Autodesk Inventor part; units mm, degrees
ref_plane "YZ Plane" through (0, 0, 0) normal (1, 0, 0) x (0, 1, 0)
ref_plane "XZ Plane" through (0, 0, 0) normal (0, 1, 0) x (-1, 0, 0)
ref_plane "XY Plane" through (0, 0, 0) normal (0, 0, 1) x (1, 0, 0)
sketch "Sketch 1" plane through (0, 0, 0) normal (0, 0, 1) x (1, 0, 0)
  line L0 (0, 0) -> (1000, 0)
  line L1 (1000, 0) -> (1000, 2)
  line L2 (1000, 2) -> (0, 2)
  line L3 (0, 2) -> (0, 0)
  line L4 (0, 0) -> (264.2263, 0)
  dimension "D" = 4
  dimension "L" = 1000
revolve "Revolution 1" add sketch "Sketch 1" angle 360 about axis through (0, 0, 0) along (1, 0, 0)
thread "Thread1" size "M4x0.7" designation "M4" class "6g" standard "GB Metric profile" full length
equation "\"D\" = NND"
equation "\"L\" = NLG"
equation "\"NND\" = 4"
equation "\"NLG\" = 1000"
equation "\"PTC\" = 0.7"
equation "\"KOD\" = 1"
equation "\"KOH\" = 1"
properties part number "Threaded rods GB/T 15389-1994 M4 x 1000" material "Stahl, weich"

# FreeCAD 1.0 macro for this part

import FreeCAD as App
import Part
import Sketcher
Q = App.Units.Quantity


def add_polygon(sketch, points):
    """Adds a closed chain of lines whose ends are joined by coincident constraints."""
    first, n = sketch.GeometryCount, len(points)
    for a, b in zip(points, points[1:] + points[:1]):
        sketch.addGeometry(Part.LineSegment(App.Vector(*a, 0), App.Vector(*b, 0)), False)
    for i in range(n):
        sketch.addConstraint(Sketcher.Constraint("Coincident", first + i, 2, first + (i + 1) % n, 1))

doc = App.newDocument("Part")
body = doc.addObject("PartDesign::Body", "Body")

# Sketch on XY plane
sketch1 = body.newObject("Sketcher::SketchObject", "Sketch")
sketch1.AttachmentSupport = (doc.getObject("XY_Plane"), [""])
sketch1.MapMode = "FlatFace"
add_polygon(sketch1, [(0, 2), (0, 0), (1000, 0), (1000, 2)])  # lines 0-3
sketch1.addConstraint([
    Sketcher.Constraint("Vertical", 0),
    Sketcher.Constraint("Horizontal", 1),
    Sketcher.Constraint("Vertical", 2),
    Sketcher.Constraint("Horizontal", 3),
    Sketcher.Constraint("Coincident", 0, 2, -1, 1),
    Sketcher.Constraint("DistanceX", 1, 1, 1, 2, Q("1000 mm")),
    Sketcher.Constraint("DistanceY", 0, 2, 0, 1, Q("2 mm")),
])
revolution = body.newObject("PartDesign::Revolution", "Revolution")
revolution.Profile = sketch1
revolution.ReferenceAxis = (sketch1, ["H_Axis"])
revolution.Angle = 360

doc.recompute()
